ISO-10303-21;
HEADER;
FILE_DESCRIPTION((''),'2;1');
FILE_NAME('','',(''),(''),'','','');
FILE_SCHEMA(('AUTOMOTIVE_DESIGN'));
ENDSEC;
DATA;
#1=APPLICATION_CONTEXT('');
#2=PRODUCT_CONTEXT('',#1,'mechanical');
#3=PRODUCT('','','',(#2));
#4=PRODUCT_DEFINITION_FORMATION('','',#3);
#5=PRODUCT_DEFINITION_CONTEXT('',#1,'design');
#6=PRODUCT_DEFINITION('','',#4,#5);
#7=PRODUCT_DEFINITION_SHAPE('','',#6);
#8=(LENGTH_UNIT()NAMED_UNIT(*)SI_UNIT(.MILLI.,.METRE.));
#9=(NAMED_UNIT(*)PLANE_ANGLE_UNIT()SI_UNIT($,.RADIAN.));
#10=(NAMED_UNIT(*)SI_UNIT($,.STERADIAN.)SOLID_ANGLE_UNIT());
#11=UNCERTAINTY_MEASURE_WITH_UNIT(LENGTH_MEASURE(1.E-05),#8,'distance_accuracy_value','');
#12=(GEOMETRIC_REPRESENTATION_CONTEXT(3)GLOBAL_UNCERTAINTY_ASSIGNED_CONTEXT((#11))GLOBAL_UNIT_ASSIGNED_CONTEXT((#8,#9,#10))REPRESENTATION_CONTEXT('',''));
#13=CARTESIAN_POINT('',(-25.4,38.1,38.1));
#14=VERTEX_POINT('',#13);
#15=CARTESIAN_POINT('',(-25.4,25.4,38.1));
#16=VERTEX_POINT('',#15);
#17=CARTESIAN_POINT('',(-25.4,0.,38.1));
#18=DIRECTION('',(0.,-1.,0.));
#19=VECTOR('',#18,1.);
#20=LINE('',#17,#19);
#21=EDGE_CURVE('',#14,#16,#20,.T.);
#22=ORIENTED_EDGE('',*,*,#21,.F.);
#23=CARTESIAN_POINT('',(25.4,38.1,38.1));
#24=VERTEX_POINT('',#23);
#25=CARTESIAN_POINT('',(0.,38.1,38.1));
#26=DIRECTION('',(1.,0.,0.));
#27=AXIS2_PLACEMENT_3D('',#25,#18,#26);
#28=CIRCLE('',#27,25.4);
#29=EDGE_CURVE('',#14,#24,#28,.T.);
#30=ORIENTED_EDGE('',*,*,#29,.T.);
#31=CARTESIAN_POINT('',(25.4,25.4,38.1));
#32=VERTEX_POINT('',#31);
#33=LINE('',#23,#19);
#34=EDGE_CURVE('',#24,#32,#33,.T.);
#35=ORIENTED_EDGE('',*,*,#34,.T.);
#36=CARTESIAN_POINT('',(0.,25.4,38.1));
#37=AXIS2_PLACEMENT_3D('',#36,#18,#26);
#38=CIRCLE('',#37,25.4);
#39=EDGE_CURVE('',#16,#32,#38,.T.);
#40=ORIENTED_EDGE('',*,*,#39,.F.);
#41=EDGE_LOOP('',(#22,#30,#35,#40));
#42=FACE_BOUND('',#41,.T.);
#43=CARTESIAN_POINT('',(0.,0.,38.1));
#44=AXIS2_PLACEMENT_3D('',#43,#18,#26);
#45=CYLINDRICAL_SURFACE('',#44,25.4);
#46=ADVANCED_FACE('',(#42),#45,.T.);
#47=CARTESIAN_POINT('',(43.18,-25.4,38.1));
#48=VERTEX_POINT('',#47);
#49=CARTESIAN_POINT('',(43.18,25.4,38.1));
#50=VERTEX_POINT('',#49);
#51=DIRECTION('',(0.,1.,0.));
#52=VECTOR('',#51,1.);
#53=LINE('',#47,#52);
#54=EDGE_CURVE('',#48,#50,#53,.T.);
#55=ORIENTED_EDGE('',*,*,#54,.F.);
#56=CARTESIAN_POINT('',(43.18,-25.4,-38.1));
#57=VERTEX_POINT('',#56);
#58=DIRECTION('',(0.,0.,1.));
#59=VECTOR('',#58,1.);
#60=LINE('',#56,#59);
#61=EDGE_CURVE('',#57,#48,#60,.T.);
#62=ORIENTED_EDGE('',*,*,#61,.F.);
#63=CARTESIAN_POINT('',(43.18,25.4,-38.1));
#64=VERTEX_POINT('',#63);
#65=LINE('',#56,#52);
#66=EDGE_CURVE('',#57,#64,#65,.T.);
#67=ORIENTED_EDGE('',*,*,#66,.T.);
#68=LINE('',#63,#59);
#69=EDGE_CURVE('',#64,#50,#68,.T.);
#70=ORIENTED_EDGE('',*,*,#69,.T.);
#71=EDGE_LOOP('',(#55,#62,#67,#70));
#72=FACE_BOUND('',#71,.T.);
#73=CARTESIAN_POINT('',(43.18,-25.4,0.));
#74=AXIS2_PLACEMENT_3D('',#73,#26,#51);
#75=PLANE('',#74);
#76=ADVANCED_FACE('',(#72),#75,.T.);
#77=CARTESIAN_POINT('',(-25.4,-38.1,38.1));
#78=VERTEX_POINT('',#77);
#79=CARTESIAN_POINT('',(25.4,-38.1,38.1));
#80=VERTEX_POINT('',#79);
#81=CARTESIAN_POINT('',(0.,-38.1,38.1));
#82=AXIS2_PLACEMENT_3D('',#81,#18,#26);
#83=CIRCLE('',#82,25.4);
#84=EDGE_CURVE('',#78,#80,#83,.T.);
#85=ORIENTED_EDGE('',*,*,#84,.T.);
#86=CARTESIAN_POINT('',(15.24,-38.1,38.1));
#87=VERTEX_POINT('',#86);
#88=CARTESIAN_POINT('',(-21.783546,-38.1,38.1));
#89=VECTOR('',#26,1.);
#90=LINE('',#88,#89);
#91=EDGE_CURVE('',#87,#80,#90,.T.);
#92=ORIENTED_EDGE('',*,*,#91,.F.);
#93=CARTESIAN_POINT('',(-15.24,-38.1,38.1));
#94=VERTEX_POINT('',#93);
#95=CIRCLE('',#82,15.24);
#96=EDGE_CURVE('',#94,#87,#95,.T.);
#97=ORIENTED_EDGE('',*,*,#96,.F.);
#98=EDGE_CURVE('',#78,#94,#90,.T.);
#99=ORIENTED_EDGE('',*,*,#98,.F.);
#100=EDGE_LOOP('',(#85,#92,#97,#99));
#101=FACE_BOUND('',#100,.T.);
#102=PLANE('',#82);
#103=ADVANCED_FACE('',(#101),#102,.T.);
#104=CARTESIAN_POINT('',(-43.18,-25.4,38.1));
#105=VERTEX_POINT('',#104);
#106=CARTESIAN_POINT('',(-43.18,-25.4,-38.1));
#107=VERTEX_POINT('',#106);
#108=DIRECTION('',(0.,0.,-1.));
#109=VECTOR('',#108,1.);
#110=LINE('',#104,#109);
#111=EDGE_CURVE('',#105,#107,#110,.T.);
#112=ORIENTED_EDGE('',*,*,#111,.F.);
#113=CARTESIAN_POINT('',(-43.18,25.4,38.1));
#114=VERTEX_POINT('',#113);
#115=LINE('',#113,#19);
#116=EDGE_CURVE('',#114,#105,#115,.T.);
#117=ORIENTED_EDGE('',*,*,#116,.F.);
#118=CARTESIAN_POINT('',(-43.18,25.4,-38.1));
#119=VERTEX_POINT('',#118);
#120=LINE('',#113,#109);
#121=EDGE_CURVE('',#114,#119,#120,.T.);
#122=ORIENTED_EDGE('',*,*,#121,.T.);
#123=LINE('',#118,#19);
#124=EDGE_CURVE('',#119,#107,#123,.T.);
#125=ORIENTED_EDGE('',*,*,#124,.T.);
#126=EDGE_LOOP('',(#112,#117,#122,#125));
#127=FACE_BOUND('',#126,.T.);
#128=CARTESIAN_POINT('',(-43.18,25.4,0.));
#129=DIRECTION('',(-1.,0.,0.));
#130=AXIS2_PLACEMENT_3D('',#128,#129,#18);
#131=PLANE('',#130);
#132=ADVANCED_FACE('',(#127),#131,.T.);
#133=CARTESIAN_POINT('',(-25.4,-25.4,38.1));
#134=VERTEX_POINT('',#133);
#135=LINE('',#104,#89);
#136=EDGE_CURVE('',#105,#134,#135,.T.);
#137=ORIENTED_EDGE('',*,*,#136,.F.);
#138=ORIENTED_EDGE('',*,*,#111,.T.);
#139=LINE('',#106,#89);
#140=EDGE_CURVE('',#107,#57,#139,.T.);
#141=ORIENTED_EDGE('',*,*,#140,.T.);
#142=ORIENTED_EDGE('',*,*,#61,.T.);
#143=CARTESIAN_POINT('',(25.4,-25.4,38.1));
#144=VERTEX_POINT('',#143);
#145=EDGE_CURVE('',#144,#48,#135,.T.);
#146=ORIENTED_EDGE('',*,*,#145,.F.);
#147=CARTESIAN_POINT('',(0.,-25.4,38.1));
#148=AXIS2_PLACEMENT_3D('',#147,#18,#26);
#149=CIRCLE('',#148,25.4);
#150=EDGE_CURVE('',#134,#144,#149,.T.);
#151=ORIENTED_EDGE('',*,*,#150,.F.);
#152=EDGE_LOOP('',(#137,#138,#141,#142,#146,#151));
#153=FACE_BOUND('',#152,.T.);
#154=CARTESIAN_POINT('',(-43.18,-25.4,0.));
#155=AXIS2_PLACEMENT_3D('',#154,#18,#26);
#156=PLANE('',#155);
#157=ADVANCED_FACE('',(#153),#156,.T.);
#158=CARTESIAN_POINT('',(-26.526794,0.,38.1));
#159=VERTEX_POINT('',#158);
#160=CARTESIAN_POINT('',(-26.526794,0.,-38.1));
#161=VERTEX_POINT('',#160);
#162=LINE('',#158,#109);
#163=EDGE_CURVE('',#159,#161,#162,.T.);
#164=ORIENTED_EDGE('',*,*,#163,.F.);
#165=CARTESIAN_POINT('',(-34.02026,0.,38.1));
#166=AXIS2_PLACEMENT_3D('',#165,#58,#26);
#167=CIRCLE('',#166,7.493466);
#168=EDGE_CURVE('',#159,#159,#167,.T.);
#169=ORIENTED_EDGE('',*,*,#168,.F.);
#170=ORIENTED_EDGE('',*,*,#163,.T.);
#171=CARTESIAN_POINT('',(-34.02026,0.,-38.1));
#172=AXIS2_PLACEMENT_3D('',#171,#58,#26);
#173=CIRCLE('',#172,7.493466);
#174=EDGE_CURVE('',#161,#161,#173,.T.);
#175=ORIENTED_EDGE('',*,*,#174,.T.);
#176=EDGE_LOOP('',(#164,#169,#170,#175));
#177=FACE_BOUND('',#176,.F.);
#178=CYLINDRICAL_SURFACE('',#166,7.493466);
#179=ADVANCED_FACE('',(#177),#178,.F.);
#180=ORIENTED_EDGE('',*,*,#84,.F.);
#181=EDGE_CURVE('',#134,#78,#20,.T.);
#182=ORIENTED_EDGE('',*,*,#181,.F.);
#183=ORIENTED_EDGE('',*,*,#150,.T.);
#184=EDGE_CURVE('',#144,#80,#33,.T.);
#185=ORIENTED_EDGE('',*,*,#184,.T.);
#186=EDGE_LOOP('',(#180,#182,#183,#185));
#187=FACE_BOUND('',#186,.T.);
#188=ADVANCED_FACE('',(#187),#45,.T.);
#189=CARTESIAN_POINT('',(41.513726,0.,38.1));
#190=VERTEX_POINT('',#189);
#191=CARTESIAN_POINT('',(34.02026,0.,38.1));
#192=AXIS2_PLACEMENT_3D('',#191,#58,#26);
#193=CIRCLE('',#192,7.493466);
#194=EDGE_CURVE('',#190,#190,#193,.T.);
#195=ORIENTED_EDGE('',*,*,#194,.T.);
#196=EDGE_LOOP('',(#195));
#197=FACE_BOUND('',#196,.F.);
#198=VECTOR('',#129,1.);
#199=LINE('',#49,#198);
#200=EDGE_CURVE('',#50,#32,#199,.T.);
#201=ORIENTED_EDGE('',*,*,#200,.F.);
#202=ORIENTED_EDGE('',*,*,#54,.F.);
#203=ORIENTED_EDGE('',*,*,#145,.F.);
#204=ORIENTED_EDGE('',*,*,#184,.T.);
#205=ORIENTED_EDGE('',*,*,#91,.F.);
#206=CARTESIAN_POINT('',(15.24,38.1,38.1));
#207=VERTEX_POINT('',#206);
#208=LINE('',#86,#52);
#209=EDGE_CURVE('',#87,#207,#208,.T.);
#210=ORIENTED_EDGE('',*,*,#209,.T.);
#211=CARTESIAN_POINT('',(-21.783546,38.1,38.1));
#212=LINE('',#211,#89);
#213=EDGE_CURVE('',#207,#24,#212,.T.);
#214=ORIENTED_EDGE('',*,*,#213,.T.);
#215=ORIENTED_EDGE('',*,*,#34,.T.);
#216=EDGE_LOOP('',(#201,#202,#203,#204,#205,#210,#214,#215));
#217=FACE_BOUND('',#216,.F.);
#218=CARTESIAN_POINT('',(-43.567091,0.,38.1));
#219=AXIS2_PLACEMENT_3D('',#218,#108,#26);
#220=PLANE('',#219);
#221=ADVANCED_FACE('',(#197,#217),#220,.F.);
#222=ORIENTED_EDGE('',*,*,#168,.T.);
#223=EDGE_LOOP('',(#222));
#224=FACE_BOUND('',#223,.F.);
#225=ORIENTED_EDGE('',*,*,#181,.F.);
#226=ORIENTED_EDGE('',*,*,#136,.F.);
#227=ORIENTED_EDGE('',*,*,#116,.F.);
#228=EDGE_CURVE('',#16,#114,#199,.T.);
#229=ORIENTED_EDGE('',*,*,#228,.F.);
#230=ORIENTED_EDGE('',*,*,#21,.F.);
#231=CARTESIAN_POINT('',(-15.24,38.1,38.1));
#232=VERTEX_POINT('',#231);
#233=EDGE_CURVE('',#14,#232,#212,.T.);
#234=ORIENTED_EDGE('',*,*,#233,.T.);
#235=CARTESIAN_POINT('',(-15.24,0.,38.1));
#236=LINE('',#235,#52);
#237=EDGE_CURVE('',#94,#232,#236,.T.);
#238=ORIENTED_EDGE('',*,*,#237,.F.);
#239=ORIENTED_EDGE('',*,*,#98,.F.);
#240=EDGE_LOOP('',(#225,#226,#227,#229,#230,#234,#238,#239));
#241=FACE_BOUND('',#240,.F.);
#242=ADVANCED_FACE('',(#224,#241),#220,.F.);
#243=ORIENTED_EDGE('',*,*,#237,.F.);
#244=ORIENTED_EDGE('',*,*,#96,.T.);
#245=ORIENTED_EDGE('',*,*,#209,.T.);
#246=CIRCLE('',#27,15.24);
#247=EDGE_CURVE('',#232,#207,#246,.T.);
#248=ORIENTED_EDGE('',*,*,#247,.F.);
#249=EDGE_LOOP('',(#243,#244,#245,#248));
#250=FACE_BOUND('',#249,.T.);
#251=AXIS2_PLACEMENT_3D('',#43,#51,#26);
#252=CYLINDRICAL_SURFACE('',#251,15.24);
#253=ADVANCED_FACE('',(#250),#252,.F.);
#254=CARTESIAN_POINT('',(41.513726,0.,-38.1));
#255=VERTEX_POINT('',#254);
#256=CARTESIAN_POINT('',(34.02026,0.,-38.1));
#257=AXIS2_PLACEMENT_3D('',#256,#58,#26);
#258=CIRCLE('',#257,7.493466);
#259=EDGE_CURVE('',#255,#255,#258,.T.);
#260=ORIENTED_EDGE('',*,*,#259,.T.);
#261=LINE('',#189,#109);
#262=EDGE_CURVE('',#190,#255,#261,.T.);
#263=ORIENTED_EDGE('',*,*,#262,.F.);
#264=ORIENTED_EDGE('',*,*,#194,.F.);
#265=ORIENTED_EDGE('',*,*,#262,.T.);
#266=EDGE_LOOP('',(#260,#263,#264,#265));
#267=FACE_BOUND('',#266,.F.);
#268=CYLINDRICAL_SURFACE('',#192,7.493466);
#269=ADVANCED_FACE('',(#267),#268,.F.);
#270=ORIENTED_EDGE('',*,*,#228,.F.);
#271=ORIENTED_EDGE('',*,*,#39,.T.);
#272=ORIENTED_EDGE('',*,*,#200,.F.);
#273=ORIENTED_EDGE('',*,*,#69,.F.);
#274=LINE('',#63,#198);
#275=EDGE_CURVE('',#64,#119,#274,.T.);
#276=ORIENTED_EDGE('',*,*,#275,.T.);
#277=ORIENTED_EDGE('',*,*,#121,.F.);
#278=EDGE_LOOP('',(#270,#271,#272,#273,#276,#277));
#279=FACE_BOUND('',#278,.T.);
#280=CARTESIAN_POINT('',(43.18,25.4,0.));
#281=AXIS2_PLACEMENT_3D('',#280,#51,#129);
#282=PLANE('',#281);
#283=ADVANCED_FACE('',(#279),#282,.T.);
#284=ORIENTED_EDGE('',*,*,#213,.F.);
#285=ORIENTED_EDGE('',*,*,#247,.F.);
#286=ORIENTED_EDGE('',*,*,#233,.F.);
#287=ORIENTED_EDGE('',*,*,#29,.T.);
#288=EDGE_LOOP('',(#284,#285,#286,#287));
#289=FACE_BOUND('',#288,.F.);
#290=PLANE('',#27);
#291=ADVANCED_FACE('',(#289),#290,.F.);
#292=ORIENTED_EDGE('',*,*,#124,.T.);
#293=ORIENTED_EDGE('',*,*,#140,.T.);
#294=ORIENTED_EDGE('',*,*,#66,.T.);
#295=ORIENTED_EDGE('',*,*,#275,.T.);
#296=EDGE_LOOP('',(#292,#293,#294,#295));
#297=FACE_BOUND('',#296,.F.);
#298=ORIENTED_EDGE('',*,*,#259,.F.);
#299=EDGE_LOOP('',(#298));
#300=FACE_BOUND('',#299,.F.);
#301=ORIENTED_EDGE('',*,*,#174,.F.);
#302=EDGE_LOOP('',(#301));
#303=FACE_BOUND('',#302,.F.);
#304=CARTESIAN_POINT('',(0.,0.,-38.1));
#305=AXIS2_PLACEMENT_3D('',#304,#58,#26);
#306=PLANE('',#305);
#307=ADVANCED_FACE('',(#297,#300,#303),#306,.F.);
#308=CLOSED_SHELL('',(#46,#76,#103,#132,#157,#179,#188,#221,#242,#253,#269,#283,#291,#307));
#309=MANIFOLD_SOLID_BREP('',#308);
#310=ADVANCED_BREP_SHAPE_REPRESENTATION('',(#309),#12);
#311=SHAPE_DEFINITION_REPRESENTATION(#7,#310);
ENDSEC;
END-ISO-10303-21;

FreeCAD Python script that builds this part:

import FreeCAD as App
import Part
import Sketcher

V = App.Vector
Q = App.Units.Quantity

doc = App.newDocument("Part")
body = doc.addObject("PartDesign::Body", "Body")

sketch1 = body.newObject("Sketcher::SketchObject", "Sketch")
sketch1.AttachmentSupport = (doc.getObject("XY_Plane"), [""])
sketch1.MapMode = "FlatFace"
sketch1.addGeometry(Part.LineSegment(V(-43.18, -25.4, 0), V(43.18, -25.4, 0)), False)
sketch1.addGeometry(Part.LineSegment(V(43.18, -25.4, 0), V(43.18, 25.4, 0)), False)
sketch1.addGeometry(Part.LineSegment(V(43.18, 25.4, 0), V(-43.18, 25.4, 0)), False)
sketch1.addGeometry(Part.LineSegment(V(-43.18, 25.4, 0), V(-43.18, -25.4, 0)), False)
sketch1.addConstraint(Sketcher.Constraint("Coincident", 0, 2, 1, 1))
sketch1.addConstraint(Sketcher.Constraint("Coincident", 1, 2, 2, 1))
sketch1.addConstraint(Sketcher.Constraint("Coincident", 2, 2, 3, 1))
sketch1.addConstraint(Sketcher.Constraint("Coincident", 3, 2, 0, 1))
sketch1.addConstraint(Sketcher.Constraint("Horizontal", 0))
sketch1.addConstraint(Sketcher.Constraint("Vertical", 1))
sketch1.addConstraint(Sketcher.Constraint("Horizontal", 2))
sketch1.addConstraint(Sketcher.Constraint("Vertical", 3))
sketch1.addConstraint(Sketcher.Constraint("Symmetric", 0, 2, 2, 2, -1, 1))
sketch1.addConstraint(Sketcher.Constraint("DistanceY", 1, 1, 1, 2, Q("2 in")))
sketch1.addConstraint(Sketcher.Constraint("DistanceX", 0, 1, 0, 2, Q("3.4 in")))
pad1 = body.newObject("PartDesign::Pad", "Pad")
pad1.Profile = sketch1
pad1.Length = Q("3 in")
pad1.Midplane = True

sketch2 = body.newObject("Sketcher::SketchObject", "Sketch001")
sketch2.AttachmentSupport = (doc.getObject("XZ_Plane"), [""])
sketch2.MapMode = "FlatFace"
sketch2.addGeometry(Part.Circle(V(0, 38.1, 0), V(0, 0, 1), 25.4), False)
sketch2.addGeometry(Part.Circle(V(0, 38.1, 0), V(0, 0, 1), 15.24), False)
sketch2.addConstraint(Sketcher.Constraint("Coincident", 1, 3, 0, 3))
sketch2.addConstraint(Sketcher.Constraint("PointOnObject", 0, 3, -2))
sketch2.addConstraint(Sketcher.Constraint("Diameter", 0, Q("2 in")))
sketch2.addConstraint(Sketcher.Constraint("Diameter", 1, Q("1.2 in")))
sketch2.addConstraint(Sketcher.Constraint("DistanceY", -1, 1, 0, 3, Q("1.5 in")))
pad2 = body.newObject("PartDesign::Pad", "Pad001")
pad2.Profile = sketch2
pad2.Length = Q("3 in")
pad2.Midplane = True

sketch3 = body.newObject("Sketcher::SketchObject", "Sketch002")
sketch3.AttachmentSupport = (doc.getObject("XZ_Plane"), [""])
sketch3.MapMode = "FlatFace"
sketch3.AttachmentOffset = App.Placement(V(0, 0, 1.5 * 25.4), App.Rotation())
sketch3.addGeometry(Part.Circle(V(0, 38.1, 0), V(0, 0, 1), 15.24), False)
sketch3.addConstraint(Sketcher.Constraint("PointOnObject", 0, 3, -2))
sketch3.addConstraint(Sketcher.Constraint("Diameter", 0, Q("1.2 in")))
sketch3.addConstraint(Sketcher.Constraint("DistanceY", -1, 1, 0, 3, Q("1.5 in")))
pocket1 = body.newObject("PartDesign::Pocket", "Pocket")
pocket1.Profile = sketch3
pocket1.Length = Q("5 in")

sketch4 = body.newObject("Sketcher::SketchObject", "Sketch003")
sketch4.AttachmentSupport = (doc.getObject("XZ_Plane"), [""])
sketch4.MapMode = "FlatFace"
sketch4.addGeometry(Part.LineSegment(V(-46.033151, 71.802839, 0), V(-43.567091, 38.1, 0)), False)
sketch4.addGeometry(Part.LineSegment(V(-43.567091, 38.1, 0), V(43.567095, 38.1, 0)), False)
sketch4.addGeometry(Part.LineSegment(V(43.567095, 38.1, 0), V(43.567095, 71.802839, 0)), False)
sketch4.addGeometry(Part.LineSegment(V(43.567095, 71.802839, 0), V(-46.033151, 71.802839, 0)), False)
sketch4.addConstraint(Sketcher.Constraint("Coincident", 0, 2, 1, 1))
sketch4.addConstraint(Sketcher.Constraint("Coincident", 1, 2, 2, 1))
sketch4.addConstraint(Sketcher.Constraint("Coincident", 2, 2, 3, 1))
sketch4.addConstraint(Sketcher.Constraint("Coincident", 3, 2, 0, 1))
sketch4.addConstraint(Sketcher.Constraint("Horizontal", 1))
sketch4.addConstraint(Sketcher.Constraint("Vertical", 2))
sketch4.addConstraint(Sketcher.Constraint("Horizontal", 3))
sketch4.addConstraint(Sketcher.Constraint("DistanceY", -1, 1, 0, 2, Q("1.5 in")))
sketch4.addConstraint(Sketcher.Constraint("DistanceY", 2, 1, 2, 2, 33.702839))
sketch4.addConstraint(Sketcher.Constraint("Distance", 0, 33.79294))
sketch4.addConstraint(Sketcher.Constraint("DistanceX", 1, 1, 1, 2, 87.134186))
sketch4.addConstraint(Sketcher.Constraint("DistanceX", 0, 2, -1, 1, 43.567091))
pocket2 = body.newObject("PartDesign::Pocket", "Pocket001")
pocket2.Profile = sketch4
pocket2.Length = Q("5 in")
pocket2.Midplane = True

sketch5 = body.newObject("Sketcher::SketchObject", "Sketch004")
sketch5.AttachmentSupport = (doc.getObject("XY_Plane"), [""])
sketch5.MapMode = "FlatFace"
sketch5.AttachmentOffset = App.Placement(V(0, 0, 1.5 * 25.4), App.Rotation())
sketch5.addGeometry(Part.Circle(V(-34.02026, 0, 0), V(0, 0, 1), 7.493466), False)
sketch5.addGeometry(Part.Circle(V(34.02026, 0, 0), V(0, 0, 1), 7.493466), False)
sketch5.addConstraint(Sketcher.Constraint("Equal", 0, 1))
sketch5.addConstraint(Sketcher.Constraint("Symmetric", 0, 3, 1, 3, -1, 1))
sketch5.addConstraint(Sketcher.Constraint("PointOnObject", 0, 3, -1))
sketch5.addConstraint(Sketcher.Constraint("Diameter", 0, 14.986932))
sketch5.addConstraint(Sketcher.Constraint("DistanceX", 0, 3, -1, 1, 34.02026))
pocket3 = body.newObject("PartDesign::Pocket", "Pocket002")
pocket3.Profile = sketch5
pocket3.Type = "ThroughAll"

doc.recompute()
